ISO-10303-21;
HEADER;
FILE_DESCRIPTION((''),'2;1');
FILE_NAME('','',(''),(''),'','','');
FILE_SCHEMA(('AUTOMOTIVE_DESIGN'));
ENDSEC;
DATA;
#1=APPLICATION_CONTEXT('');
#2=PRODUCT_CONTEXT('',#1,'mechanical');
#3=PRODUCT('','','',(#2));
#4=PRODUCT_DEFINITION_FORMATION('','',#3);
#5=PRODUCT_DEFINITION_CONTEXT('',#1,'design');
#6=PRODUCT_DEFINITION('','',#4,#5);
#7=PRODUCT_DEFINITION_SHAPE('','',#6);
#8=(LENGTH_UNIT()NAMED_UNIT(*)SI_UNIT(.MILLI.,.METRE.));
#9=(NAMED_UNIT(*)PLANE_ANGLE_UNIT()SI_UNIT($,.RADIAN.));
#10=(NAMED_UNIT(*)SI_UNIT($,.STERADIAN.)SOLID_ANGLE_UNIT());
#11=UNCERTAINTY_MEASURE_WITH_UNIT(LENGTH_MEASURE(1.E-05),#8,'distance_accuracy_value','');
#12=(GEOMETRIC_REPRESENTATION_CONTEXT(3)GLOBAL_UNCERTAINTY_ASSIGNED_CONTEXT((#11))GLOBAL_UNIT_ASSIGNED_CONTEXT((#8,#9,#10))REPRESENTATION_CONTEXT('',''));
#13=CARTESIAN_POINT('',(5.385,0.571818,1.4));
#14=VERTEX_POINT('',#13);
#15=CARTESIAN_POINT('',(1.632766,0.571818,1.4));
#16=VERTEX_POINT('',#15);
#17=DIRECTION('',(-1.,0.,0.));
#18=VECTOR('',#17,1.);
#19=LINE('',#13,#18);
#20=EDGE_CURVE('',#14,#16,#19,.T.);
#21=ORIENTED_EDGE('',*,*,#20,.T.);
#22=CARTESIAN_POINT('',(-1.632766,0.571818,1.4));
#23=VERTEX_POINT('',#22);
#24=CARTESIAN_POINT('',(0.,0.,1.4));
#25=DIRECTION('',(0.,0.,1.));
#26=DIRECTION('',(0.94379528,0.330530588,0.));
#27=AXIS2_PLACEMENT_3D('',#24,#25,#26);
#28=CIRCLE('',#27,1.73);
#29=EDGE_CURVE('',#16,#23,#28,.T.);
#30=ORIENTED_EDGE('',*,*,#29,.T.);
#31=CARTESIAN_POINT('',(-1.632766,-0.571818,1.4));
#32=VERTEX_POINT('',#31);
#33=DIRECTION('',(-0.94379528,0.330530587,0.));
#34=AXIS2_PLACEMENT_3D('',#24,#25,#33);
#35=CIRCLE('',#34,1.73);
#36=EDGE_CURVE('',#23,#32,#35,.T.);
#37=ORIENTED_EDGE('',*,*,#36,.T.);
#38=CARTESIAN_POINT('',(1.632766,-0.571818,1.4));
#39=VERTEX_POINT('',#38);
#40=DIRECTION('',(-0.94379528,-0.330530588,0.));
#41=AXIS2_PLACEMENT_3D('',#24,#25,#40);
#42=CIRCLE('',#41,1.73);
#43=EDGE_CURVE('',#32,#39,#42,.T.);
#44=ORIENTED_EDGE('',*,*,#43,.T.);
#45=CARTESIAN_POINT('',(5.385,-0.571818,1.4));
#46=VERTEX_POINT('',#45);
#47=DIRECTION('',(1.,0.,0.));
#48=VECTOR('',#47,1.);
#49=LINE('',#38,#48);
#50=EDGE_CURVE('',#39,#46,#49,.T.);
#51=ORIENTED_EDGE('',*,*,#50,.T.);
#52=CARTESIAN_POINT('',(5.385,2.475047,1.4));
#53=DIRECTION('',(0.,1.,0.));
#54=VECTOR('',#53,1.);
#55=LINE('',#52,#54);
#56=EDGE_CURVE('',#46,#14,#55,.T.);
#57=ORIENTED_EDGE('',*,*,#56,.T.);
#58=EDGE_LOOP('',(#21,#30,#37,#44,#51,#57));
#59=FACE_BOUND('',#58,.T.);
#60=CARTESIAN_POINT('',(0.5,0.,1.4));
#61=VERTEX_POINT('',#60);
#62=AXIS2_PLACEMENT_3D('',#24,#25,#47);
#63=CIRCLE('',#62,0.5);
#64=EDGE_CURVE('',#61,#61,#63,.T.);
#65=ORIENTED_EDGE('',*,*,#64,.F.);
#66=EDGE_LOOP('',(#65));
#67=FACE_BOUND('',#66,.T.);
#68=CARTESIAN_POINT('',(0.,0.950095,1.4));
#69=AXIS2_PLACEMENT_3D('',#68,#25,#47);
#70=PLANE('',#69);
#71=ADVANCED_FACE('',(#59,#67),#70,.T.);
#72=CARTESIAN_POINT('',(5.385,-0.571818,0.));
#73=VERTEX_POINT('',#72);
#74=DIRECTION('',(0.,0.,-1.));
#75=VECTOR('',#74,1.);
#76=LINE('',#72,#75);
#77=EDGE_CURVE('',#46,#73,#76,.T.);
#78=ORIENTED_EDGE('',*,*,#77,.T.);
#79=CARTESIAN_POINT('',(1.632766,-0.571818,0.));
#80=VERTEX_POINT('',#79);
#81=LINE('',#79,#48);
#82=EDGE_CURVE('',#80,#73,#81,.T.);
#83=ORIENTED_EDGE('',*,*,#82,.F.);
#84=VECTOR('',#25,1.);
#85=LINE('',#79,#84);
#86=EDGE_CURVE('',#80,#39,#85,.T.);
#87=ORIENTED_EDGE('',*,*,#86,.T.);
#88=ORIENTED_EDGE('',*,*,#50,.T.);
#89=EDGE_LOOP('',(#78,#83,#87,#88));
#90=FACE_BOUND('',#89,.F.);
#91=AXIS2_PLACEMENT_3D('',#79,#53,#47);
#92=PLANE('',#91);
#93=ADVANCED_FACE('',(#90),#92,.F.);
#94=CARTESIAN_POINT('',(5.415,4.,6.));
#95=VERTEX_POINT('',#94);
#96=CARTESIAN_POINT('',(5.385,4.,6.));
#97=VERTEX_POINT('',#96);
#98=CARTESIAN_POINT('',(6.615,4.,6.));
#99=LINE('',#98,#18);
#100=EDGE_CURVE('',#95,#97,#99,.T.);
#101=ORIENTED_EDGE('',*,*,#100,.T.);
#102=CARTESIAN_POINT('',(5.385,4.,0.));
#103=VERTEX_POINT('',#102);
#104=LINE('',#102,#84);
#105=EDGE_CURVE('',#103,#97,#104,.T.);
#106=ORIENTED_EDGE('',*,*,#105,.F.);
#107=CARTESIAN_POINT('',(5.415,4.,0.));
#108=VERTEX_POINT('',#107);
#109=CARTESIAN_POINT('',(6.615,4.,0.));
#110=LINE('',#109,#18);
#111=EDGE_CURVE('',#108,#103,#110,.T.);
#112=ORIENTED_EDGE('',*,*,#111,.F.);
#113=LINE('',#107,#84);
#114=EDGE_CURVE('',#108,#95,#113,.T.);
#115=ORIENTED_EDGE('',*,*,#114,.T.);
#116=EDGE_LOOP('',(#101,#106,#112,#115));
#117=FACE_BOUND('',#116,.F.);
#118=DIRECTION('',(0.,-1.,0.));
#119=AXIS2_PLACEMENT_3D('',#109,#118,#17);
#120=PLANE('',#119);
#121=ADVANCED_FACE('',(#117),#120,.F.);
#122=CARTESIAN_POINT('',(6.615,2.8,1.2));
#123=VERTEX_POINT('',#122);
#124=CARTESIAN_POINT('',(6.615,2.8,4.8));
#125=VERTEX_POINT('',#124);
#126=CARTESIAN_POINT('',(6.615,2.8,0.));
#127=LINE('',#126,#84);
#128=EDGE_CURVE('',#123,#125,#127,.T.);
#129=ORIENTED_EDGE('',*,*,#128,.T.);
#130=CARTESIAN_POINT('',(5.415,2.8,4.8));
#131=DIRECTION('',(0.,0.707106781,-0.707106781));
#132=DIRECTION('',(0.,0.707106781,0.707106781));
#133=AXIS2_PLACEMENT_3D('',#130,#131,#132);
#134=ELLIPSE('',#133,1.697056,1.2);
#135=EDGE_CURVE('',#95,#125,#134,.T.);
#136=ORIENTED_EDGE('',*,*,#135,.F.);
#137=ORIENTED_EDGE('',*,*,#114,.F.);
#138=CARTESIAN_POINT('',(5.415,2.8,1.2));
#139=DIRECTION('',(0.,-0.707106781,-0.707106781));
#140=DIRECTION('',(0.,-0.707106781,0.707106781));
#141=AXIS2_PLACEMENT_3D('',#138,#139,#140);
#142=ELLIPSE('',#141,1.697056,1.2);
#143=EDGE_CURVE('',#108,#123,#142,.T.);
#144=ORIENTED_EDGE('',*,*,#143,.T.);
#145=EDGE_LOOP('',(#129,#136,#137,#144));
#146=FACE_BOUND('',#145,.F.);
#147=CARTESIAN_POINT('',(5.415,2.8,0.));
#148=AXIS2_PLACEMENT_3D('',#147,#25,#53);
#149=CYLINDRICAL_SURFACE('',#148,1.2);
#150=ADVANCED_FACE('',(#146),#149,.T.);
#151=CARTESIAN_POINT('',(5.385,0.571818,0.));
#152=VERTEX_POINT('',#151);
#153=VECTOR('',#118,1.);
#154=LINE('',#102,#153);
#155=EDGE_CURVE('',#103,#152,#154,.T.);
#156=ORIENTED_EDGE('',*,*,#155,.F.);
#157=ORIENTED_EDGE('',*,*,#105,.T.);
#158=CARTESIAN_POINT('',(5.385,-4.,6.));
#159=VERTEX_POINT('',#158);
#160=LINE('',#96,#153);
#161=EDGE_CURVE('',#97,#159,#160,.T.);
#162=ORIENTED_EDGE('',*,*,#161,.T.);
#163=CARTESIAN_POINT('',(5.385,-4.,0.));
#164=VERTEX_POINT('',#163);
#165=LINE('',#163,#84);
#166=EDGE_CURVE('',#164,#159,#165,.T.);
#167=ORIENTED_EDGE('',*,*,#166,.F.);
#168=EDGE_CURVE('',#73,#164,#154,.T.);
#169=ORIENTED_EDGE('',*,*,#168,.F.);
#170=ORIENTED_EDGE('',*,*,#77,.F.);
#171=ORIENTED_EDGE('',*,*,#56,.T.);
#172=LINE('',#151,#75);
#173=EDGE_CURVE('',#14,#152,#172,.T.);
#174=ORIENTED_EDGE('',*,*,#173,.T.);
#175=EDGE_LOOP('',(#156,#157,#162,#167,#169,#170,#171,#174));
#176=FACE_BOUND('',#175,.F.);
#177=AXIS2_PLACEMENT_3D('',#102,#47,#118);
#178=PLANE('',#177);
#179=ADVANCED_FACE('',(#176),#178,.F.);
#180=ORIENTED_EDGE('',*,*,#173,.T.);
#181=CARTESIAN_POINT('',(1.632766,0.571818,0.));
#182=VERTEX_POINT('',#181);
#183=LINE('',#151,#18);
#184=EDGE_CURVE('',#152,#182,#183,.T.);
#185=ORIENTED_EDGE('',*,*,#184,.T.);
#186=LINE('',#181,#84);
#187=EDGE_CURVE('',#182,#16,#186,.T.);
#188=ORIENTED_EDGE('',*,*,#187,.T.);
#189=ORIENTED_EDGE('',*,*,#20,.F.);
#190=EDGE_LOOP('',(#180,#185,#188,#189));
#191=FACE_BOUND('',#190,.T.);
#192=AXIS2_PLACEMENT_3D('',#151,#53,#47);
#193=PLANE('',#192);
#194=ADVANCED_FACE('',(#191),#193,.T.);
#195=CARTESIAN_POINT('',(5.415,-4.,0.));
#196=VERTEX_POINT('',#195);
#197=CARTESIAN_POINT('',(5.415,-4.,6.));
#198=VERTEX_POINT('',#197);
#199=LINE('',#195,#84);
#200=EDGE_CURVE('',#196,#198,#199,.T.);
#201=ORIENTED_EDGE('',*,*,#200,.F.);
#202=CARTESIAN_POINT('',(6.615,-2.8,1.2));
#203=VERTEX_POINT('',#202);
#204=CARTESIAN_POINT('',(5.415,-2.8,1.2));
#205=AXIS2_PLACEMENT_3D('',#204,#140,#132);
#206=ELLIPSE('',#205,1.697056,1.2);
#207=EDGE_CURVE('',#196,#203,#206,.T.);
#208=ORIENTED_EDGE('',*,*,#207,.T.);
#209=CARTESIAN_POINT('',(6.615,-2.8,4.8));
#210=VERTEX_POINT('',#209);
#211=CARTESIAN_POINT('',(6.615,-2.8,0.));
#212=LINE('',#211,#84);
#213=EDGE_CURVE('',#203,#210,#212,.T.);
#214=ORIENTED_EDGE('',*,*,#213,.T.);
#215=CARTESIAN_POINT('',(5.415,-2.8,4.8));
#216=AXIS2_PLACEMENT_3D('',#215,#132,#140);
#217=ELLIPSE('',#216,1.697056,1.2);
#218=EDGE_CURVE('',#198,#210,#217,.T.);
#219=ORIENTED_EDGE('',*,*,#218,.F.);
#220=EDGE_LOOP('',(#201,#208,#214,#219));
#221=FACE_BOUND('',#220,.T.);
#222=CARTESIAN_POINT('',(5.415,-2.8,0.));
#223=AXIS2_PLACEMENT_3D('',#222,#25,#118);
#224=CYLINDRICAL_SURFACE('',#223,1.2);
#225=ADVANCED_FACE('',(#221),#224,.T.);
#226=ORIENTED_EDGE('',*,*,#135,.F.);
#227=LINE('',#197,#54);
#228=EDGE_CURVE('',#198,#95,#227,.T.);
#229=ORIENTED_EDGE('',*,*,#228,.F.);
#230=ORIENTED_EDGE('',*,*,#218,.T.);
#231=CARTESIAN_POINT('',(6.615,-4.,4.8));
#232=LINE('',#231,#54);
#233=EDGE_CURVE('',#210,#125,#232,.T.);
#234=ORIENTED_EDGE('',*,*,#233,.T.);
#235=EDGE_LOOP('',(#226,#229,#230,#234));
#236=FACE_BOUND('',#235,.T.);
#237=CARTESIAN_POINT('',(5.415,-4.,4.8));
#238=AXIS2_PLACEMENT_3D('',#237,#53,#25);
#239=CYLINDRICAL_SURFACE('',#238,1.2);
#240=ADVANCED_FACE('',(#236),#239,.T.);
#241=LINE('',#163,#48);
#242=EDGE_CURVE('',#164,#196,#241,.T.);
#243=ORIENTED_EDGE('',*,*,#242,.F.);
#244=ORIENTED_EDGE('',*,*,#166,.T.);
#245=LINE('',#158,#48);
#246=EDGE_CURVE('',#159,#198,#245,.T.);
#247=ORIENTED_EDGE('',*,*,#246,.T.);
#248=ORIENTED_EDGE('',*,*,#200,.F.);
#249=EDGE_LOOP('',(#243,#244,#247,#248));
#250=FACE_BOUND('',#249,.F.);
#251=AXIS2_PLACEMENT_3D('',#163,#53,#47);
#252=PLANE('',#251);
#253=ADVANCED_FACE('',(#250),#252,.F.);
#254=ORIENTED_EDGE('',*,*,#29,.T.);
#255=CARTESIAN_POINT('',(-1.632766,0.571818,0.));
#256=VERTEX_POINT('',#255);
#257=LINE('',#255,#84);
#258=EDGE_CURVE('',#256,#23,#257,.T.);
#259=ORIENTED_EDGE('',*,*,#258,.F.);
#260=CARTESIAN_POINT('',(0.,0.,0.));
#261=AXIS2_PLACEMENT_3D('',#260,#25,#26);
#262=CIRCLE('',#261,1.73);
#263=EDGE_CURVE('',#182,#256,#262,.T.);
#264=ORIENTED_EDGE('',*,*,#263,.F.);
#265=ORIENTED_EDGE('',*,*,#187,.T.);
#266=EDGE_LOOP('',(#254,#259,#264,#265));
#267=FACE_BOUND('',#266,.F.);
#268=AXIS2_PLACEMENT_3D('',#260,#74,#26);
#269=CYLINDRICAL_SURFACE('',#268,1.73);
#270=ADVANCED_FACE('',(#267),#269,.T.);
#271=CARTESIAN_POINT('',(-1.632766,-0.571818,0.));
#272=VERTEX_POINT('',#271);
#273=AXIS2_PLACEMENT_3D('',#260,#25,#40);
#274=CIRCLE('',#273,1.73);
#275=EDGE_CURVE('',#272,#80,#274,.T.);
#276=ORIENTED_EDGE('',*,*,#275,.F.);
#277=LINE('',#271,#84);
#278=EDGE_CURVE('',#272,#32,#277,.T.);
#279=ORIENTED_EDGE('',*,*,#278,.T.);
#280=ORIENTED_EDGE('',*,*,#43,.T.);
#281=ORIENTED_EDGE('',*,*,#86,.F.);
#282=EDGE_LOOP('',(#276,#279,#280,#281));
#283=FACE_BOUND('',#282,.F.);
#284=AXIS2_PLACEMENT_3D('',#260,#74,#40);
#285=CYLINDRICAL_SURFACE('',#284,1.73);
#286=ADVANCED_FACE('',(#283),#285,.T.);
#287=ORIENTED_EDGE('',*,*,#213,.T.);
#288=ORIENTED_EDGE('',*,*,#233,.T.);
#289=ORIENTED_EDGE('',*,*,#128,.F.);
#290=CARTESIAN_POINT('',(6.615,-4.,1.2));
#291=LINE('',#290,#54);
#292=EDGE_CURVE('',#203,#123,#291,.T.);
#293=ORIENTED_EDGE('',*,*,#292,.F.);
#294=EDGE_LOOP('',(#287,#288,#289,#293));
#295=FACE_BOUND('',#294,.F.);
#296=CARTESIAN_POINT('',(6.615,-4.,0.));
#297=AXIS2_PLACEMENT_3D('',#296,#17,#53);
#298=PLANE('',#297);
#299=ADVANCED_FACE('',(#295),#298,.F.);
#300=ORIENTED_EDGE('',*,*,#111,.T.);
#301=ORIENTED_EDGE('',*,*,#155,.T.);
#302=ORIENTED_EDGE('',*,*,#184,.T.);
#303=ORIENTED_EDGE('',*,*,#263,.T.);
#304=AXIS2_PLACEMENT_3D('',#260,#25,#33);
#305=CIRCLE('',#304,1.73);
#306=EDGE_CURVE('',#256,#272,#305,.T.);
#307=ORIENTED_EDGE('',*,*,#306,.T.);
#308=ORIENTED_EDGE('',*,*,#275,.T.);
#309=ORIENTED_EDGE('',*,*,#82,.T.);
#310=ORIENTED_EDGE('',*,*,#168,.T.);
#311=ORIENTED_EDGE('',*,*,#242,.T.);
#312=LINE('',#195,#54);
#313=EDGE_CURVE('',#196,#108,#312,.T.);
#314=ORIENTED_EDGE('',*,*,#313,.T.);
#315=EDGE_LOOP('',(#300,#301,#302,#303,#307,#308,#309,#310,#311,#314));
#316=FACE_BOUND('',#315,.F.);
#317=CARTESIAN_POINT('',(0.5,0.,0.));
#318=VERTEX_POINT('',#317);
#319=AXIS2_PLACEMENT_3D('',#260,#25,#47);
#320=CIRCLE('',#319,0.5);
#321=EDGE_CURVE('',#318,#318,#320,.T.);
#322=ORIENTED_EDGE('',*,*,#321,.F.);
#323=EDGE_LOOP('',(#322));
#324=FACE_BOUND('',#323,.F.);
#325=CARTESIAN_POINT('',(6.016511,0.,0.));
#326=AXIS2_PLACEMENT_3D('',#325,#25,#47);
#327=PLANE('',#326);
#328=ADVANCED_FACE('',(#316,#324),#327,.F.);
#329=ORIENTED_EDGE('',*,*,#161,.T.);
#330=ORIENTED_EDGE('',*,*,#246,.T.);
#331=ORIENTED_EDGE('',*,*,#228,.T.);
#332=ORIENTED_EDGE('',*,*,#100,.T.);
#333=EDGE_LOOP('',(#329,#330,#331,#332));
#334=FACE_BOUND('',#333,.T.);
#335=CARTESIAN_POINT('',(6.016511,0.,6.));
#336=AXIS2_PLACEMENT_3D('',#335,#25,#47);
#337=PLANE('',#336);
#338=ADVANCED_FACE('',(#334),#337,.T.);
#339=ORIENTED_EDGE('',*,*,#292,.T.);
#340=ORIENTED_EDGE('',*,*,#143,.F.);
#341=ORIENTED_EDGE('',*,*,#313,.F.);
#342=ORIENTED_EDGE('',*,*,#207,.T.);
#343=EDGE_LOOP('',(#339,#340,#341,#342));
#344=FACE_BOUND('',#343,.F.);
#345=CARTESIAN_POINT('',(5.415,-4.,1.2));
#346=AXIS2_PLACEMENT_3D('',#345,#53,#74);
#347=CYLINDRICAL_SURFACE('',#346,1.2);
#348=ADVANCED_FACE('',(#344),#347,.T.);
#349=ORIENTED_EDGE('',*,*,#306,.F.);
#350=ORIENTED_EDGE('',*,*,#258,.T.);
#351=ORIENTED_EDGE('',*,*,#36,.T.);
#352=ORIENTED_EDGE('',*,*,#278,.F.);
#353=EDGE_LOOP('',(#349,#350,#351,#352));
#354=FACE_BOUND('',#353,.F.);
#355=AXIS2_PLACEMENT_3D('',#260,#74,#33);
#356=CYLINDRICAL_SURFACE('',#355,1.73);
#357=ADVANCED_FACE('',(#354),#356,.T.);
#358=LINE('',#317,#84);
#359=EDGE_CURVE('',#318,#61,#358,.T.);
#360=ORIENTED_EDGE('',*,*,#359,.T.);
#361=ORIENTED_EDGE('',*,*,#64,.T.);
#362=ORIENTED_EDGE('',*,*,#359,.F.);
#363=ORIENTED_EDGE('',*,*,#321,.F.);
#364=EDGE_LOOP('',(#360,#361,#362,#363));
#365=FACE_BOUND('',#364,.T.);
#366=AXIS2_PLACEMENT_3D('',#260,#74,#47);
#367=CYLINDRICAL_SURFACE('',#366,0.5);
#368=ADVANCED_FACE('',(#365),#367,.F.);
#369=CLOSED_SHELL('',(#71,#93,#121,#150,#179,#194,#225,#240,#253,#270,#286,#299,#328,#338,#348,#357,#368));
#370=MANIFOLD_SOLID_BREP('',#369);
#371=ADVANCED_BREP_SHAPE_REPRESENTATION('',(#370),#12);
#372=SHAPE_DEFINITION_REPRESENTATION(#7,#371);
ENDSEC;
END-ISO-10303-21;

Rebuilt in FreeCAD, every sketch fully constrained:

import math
import FreeCAD as App
import Part
import Sketcher


def edges_at(feature, points):
    """Names of the edges that pass closest to the given points."""
    edges = feature.Shape.Edges
    near = lambda p: min(range(len(edges)), key=lambda i: edges[i].distToShape(Part.Vertex(*p))[0])
    return sorted({f"Edge{near(p) + 1}" for p in points})


def add_polygon(sketch, points):
    """Adds a closed chain of lines whose ends are joined by coincident constraints."""
    first, n = sketch.GeometryCount, len(points)
    for a, b in zip(points, points[1:] + points[:1]):
        sketch.addGeometry(Part.LineSegment(App.Vector(*a, 0), App.Vector(*b, 0)), False)
    for i in range(n):
        sketch.addConstraint(Sketcher.Constraint("Coincident", first + i, 2, first + (i + 1) % n, 1))

doc = App.newDocument("Part")
params = doc.addObject("Spreadsheet::Sheet", "Params")
for row, (alias, value) in enumerate([
    ("sketch1_diameter", "1 mm"),
    ("sketch1_radius", "1.73 mm"),
    ("pad1_length", "1.4 mm"),
    ("sketch2_height", "8 mm"),
    ("sketch2_width", "1.23 mm"),
    ("pad2_length", "6 mm"),
    ("fillet_radius", "1.2 mm"),
], start=1):
    params.set(f"A{row}", alias)
    params.set(f"B{row}", "=" + value)
    params.setAlias(f"B{row}", alias)

body = doc.addObject("PartDesign::Body", "Body")

sketch1 = body.newObject("Sketcher::SketchObject", "Sketch")
sketch1.AttachmentSupport = (doc.getObject("XY_Plane"), [""])
sketch1.MapMode = "FlatFace"
sketch1.addGeometry([
    Part.ArcOfCircle(Part.Circle(App.Vector(0, 0, 0), App.Vector(0, 0, 1), 1.73), math.radians(19.300983), math.radians(160.699017)),
    Part.ArcOfCircle(Part.Circle(App.Vector(0, 0, 0), App.Vector(0, 0, 1), 1.73), math.radians(160.699017), math.radians(199.300983)),
    Part.ArcOfCircle(Part.Circle(App.Vector(0, 0, 0), App.Vector(0, 0, 1), 1.73), math.radians(-160.699017), math.radians(-19.300983)),
    Part.LineSegment(App.Vector(1.632766, -0.571818, 0), App.Vector(5.385, -0.571818, 0)),
    Part.LineSegment(App.Vector(5.385, -0.571818, 0), App.Vector(6, -0.571818, 0)),
    Part.LineSegment(App.Vector(6, -0.571818, 0), App.Vector(6, 0.571818, 0)),
    Part.LineSegment(App.Vector(6, 0.571818, 0), App.Vector(5.385, 0.571818, 0)),
    Part.LineSegment(App.Vector(5.385, 0.571818, 0), App.Vector(1.632766, 0.571818, 0)),
    Part.Circle(App.Vector(0, 0, 0), App.Vector(0, 0, 1), 0.5),
], False)
sketch1.addConstraint([
    Sketcher.Constraint("Tangent", 0, 2, 1, 1),
    Sketcher.Constraint("Tangent", 1, 2, 2, 1),
    Sketcher.Constraint("Coincident", 2, 2, 3, 1),
    Sketcher.Constraint("Coincident", 3, 2, 4, 1),
    Sketcher.Constraint("Coincident", 4, 2, 5, 1),
    Sketcher.Constraint("Coincident", 5, 2, 6, 1),
    Sketcher.Constraint("Coincident", 6, 2, 7, 1),
    Sketcher.Constraint("Coincident", 7, 2, 0, 1),
    Sketcher.Constraint("Horizontal", 3),
    Sketcher.Constraint("Horizontal", 4),
    Sketcher.Constraint("Vertical", 5),
    Sketcher.Constraint("Horizontal", 6),
    Sketcher.Constraint("Horizontal", 7),
    Sketcher.Constraint("Coincident", 0, 3, -1, 1),
    Sketcher.Constraint("Coincident", 2, 3, -1, 1),
    Sketcher.Constraint("Coincident", 8, 3, -1, 1),
    Sketcher.Constraint("Symmetric", 3, 2, 6, 2, -1),
    Sketcher.Constraint("Horizontal", 1, 2, 2, 2),
    Sketcher.Constraint("Horizontal", 0, 2, 5, 2),
    Sketcher.Constraint("Diameter", 8, 1.0),
    Sketcher.Constraint("Radius", 0, 1.73),
    Sketcher.Constraint("DistanceX", -1, 1, 4, 2, 6.0),
    Sketcher.Constraint("DistanceX", 4, 1, 4, 2, 0.615),
    Sketcher.Constraint("DistanceX", 3, 1, 3, 2, 3.752234),
])
sketch1.setExpression("Constraints[19]", "Params.sketch1_diameter")
sketch1.setExpression("Constraints[20]", "Params.sketch1_radius")
pad1 = body.newObject("PartDesign::Pad", "Pad")
pad1.Profile = sketch1
pad1.setExpression("Length", "Params.pad1_length")

sketch2 = body.newObject("Sketcher::SketchObject", "Sketch001")
sketch2.AttachmentSupport = (doc.getObject("XY_Plane"), [""])
sketch2.MapMode = "FlatFace"
add_polygon(sketch2, [(5.385, 4), (5.385, -4), (6.615, -4), (6.615, 4)])
sketch2.addConstraint([
    Sketcher.Constraint("Vertical", 0),
    Sketcher.Constraint("Horizontal", 1),
    Sketcher.Constraint("Vertical", 2),
    Sketcher.Constraint("Horizontal", 3),
    Sketcher.Constraint("DistanceY", 0, 2, 0, 1, 8.0),
    Sketcher.Constraint("DistanceY", 0, 2, -1, 1, 4.0),
    Sketcher.Constraint("DistanceX", 1, 1, 1, 2, 1.23),
    Sketcher.Constraint("DistanceX", -1, 1, 0, 2, 5.385),
])
sketch2.setExpression("Constraints[8]", "Params.sketch2_height")
sketch2.setExpression("Constraints[10]", "Params.sketch2_width")
pad2 = body.newObject("PartDesign::Pad", "Pad001")
pad2.Profile = sketch2
pad2.setExpression("Length", "Params.pad2_length")
doc.recompute()

fillet = body.newObject("PartDesign::Fillet", "Fillet")
fillet.Base = (pad2, edges_at(pad2, [
    (6.615, -4, 3),
    (6.615, 4, 3),
    (6.615, 0, 6),
    (6.615, 0, 0),
]))
fillet.setExpression("Radius", "Params.fillet_radius")

doc.recompute()
